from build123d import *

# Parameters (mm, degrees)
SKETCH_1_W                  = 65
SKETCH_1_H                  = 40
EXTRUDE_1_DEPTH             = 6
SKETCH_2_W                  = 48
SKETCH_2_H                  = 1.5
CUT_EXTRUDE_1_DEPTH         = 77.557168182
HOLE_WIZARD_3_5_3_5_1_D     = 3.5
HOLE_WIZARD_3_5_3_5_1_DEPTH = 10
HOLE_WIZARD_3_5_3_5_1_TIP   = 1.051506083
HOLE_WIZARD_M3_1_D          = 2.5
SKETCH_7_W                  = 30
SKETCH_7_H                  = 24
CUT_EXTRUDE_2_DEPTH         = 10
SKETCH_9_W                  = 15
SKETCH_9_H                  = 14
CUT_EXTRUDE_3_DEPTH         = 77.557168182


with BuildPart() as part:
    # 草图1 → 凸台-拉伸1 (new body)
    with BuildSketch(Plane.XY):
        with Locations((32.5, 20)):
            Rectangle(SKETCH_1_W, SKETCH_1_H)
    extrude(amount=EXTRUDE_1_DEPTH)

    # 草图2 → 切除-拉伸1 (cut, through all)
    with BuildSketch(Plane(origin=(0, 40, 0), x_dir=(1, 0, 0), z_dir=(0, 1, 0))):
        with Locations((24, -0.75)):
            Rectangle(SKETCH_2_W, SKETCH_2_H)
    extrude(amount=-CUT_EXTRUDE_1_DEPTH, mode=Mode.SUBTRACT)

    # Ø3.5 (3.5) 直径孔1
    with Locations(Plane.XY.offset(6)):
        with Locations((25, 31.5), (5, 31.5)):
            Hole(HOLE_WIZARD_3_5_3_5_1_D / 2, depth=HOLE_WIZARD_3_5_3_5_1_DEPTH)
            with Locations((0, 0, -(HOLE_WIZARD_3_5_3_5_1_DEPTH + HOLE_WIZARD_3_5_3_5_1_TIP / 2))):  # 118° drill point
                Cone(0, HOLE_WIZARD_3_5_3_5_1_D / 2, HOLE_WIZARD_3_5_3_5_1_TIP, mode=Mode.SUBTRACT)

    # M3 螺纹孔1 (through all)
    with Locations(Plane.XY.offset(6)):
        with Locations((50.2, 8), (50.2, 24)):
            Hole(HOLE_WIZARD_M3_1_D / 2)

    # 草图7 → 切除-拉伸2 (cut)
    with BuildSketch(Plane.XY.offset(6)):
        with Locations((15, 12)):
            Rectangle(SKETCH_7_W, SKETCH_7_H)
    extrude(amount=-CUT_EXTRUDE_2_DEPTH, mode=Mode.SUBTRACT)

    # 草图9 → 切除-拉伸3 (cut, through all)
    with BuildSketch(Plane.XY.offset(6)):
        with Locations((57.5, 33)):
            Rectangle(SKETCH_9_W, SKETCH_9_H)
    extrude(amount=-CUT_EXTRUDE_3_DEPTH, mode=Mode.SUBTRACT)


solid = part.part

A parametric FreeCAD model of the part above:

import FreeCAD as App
import Part
import Sketcher


def add_polygon(sketch, points):
    """Adds a closed chain of lines whose ends are joined by coincident constraints."""
    first, n = sketch.GeometryCount, len(points)
    for a, b in zip(points, points[1:] + points[:1]):
        sketch.addGeometry(Part.LineSegment(App.Vector(*a, 0), App.Vector(*b, 0)), False)
    for i in range(n):
        sketch.addConstraint(Sketcher.Constraint("Coincident", first + i, 2, first + (i + 1) % n, 1))

doc = App.newDocument("Part")
body = doc.addObject("PartDesign::Body", "Body")

# Sketch on XY plane
sketch1 = body.newObject("Sketcher::SketchObject", "Sketch")
sketch1.AttachmentSupport = (doc.getObject("XY_Plane"), [""])
sketch1.MapMode = "FlatFace"
add_polygon(sketch1, [(0, 40), (0, 0), (65, 0), (65, 40)])  # lines 0-3
sketch1.addConstraint(Sketcher.Constraint("Vertical", 0))
sketch1.addConstraint(Sketcher.Constraint("Horizontal", 1))
sketch1.addConstraint(Sketcher.Constraint("Vertical", 2))
sketch1.addConstraint(Sketcher.Constraint("Horizontal", 3))
sketch1.addConstraint(Sketcher.Constraint("Coincident", 0, 2, -1, 1))
sketch1.addConstraint(Sketcher.Constraint("DistanceX", 1, 1, 1, 2, 65.0))
sketch1.addConstraint(Sketcher.Constraint("DistanceY", 0, 2, 0, 1, 40.0))
pad1 = body.newObject("PartDesign::Pad", "Pad")
pad1.Profile = sketch1
pad1.Length = 6

# Sketch on XZ plane
sketch2 = body.newObject("Sketcher::SketchObject", "Sketch001")
sketch2.AttachmentSupport = (doc.getObject("XZ_Plane"), [""])
sketch2.MapMode = "FlatFace"
sketch2.AttachmentOffset = App.Placement(App.Vector(0, 0, -40), App.Rotation())
add_polygon(sketch2, [(0, 0), (0, 1.5), (48, 1.5), (48, 0)])  # lines 0-3
sketch2.addConstraint(Sketcher.Constraint("Vertical", 0))
sketch2.addConstraint(Sketcher.Constraint("Horizontal", 1))
sketch2.addConstraint(Sketcher.Constraint("Vertical", 2))
sketch2.addConstraint(Sketcher.Constraint("Horizontal", 3))
sketch2.addConstraint(Sketcher.Constraint("Coincident", 3, 2, -1, 1))
sketch2.addConstraint(Sketcher.Constraint("DistanceX", 1, 1, 1, 2, 48.0))
sketch2.addConstraint(Sketcher.Constraint("DistanceY", 0, 1, 0, 2, 1.5))
pocket1 = body.newObject("PartDesign::Pocket", "Pocket")
pocket1.Profile = sketch2
pocket1.Type = "ThroughAll"
pocket1.Reversed = True

# Sketch on XY plane
sketch3 = body.newObject("Sketcher::SketchObject", "Sketch002")
sketch3.AttachmentSupport = (doc.getObject("XY_Plane"), [""])
sketch3.MapMode = "FlatFace"
sketch3.AttachmentOffset = App.Placement(App.Vector(0, 0, 6), App.Rotation())
sketch3.addGeometry(Part.Circle(App.Vector(25, 31.5, 0), App.Vector(0, 0, 1), 1.8), False)
sketch3.addGeometry(Part.Circle(App.Vector(5, 31.5, 0), App.Vector(0, 0, 1), 1.8), False)
sketch3.addConstraint(Sketcher.Constraint("Equal", 0, 1))
sketch3.addConstraint(Sketcher.Constraint("Horizontal", 0, 3, 1, 3))
sketch3.addConstraint(Sketcher.Constraint("Diameter", 0, 3.5))
sketch3.addConstraint(Sketcher.Constraint("DistanceX", -1, 1, 0, 3, 25.0))
sketch3.addConstraint(Sketcher.Constraint("DistanceX", -1, 1, 1, 3, 5.0))
sketch3.addConstraint(Sketcher.Constraint("DistanceY", -1, 1, 0, 3, 31.5))
doc.recompute()
hole = body.newObject("PartDesign::Hole", "Hole")
hole.Profile = sketch3
hole.ThreadType = "None"
hole.Diameter = 3.5
hole.DepthType = "Dimension"
hole.Depth = 10
hole.DrillPoint = "Angled"
hole.DrillPointAngle = 118

# Sketch on XY plane
sketch4 = body.newObject("Sketcher::SketchObject", "Sketch003")
sketch4.AttachmentSupport = (doc.getObject("XY_Plane"), [""])
sketch4.MapMode = "FlatFace"
sketch4.AttachmentOffset = App.Placement(App.Vector(0, 0, 6), App.Rotation())
sketch4.addGeometry(Part.Circle(App.Vector(50.2, 8, 0), App.Vector(0, 0, 1), 1.2), False)
sketch4.addGeometry(Part.Circle(App.Vector(50.2, 24, 0), App.Vector(0, 0, 1), 1.2), False)
sketch4.addConstraint(Sketcher.Constraint("Equal", 0, 1))
sketch4.addConstraint(Sketcher.Constraint("Vertical", 0, 3, 1, 3))
sketch4.addConstraint(Sketcher.Constraint("Diameter", 0, 2.5))
sketch4.addConstraint(Sketcher.Constraint("DistanceY", -1, 1, 0, 3, 8.0))
sketch4.addConstraint(Sketcher.Constraint("DistanceY", -1, 1, 1, 3, 24.0))
sketch4.addConstraint(Sketcher.Constraint("DistanceX", -1, 1, 0, 3, 50.2))
doc.recompute()
hole2 = body.newObject("PartDesign::Hole", "Hole001")
hole2.Profile = sketch4
hole2.ThreadType = "None"
hole2.Diameter = 2.5
hole2.DepthType = "ThroughAll"

# Sketch on XY plane
sketch5 = body.newObject("Sketcher::SketchObject", "Sketch004")
sketch5.AttachmentSupport = (doc.getObject("XY_Plane"), [""])
sketch5.MapMode = "FlatFace"
sketch5.AttachmentOffset = App.Placement(App.Vector(0, 0, 6), App.Rotation())
add_polygon(sketch5, [(0, 24), (0, 0), (30, 0), (30, 24)])  # lines 0-3
sketch5.addConstraint(Sketcher.Constraint("Vertical", 0))
sketch5.addConstraint(Sketcher.Constraint("Horizontal", 1))
sketch5.addConstraint(Sketcher.Constraint("Vertical", 2))
sketch5.addConstraint(Sketcher.Constraint("Horizontal", 3))
sketch5.addConstraint(Sketcher.Constraint("Coincident", 0, 2, -1, 1))
sketch5.addConstraint(Sketcher.Constraint("DistanceX", 1, 1, 1, 2, 30.0))
sketch5.addConstraint(Sketcher.Constraint("DistanceY", 0, 2, 0, 1, 24.0))
pocket2 = body.newObject("PartDesign::Pocket", "Pocket001")
pocket2.Profile = sketch5
pocket2.Length = 10

# Sketch on XY plane
sketch6 = body.newObject("Sketcher::SketchObject", "Sketch005")
sketch6.AttachmentSupport = (doc.getObject("XY_Plane"), [""])
sketch6.MapMode = "FlatFace"
sketch6.AttachmentOffset = App.Placement(App.Vector(0, 0, 6), App.Rotation())
add_polygon(sketch6, [(50, 40), (50, 26), (65, 26), (65, 40)])  # lines 0-3
sketch6.addConstraint(Sketcher.Constraint("Vertical", 0))
sketch6.addConstraint(Sketcher.Constraint("Horizontal", 1))
sketch6.addConstraint(Sketcher.Constraint("Vertical", 2))
sketch6.addConstraint(Sketcher.Constraint("Horizontal", 3))
sketch6.addConstraint(Sketcher.Constraint("DistanceX", 1, 1, 1, 2, 15.0))
sketch6.addConstraint(Sketcher.Constraint("DistanceY", 0, 2, 0, 1, 14.0))
sketch6.addConstraint(Sketcher.Constraint("DistanceX", -1, 1, 0, 2, 50.0))
sketch6.addConstraint(Sketcher.Constraint("DistanceY", -1, 1, 0, 2, 26.0))
pocket3 = body.newObject("PartDesign::Pocket", "Pocket002")
pocket3.Profile = sketch6
pocket3.Type = "ThroughAll"

doc.recompute()
